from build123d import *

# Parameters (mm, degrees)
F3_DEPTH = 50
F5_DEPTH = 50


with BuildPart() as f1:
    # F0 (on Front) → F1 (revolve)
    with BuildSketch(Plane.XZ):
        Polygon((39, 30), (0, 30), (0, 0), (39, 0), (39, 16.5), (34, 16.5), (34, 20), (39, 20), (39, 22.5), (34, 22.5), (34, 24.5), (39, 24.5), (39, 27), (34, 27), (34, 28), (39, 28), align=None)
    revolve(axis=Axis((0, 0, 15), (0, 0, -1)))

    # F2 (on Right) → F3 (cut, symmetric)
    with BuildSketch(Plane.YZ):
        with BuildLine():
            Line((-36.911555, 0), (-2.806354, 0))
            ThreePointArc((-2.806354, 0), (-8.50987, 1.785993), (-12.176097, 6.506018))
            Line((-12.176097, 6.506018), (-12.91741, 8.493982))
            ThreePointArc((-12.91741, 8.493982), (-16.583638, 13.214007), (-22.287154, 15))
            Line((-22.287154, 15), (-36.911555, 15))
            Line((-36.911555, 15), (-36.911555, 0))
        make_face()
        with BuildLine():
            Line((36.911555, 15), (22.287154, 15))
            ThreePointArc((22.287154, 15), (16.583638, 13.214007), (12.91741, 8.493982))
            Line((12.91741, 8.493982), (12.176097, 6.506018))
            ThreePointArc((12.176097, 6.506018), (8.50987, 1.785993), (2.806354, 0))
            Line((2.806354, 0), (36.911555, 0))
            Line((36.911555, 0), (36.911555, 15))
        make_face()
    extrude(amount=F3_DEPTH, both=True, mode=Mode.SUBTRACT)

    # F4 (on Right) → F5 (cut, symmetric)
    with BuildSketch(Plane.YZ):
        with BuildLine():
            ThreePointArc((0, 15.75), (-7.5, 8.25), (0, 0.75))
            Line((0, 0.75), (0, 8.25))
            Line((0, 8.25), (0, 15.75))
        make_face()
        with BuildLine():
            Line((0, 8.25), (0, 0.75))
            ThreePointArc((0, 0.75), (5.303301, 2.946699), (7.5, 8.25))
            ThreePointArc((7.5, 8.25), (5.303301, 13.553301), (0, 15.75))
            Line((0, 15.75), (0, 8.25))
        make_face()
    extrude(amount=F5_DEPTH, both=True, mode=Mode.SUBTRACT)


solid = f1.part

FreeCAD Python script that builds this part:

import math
import FreeCAD as App
import Part
import Sketcher

doc = App.newDocument("Part")
body = doc.addObject("PartDesign::Body", "Body")

sketch1 = doc.addObject("Sketcher::SketchObject", "Sketch")
body.addObject(sketch1)
sketch1.AttachmentSupport = (doc.XZ_Plane, [""])
sketch1.MapMode = "FlatFace"
sketch1.addGeometry(Part.LineSegment(App.Vector(39, 30, 0), App.Vector(0, 30, 0)), False)
sketch1.addGeometry(Part.LineSegment(App.Vector(0, 30, 0), App.Vector(0, 0, 0)), False)
sketch1.addGeometry(Part.LineSegment(App.Vector(0, 0, 0), App.Vector(39, 0, 0)), False)
sketch1.addGeometry(Part.LineSegment(App.Vector(39, 0, 0), App.Vector(39, 16.5, 0)), False)
sketch1.addGeometry(Part.LineSegment(App.Vector(39, 16.5, 0), App.Vector(34, 16.5, 0)), False)
sketch1.addGeometry(Part.LineSegment(App.Vector(34, 16.5, 0), App.Vector(34, 20, 0)), False)
sketch1.addGeometry(Part.LineSegment(App.Vector(34, 20, 0), App.Vector(39, 20, 0)), False)
sketch1.addGeometry(Part.LineSegment(App.Vector(39, 20, 0), App.Vector(39, 22.5, 0)), False)
sketch1.addGeometry(Part.LineSegment(App.Vector(39, 22.5, 0), App.Vector(34, 22.5, 0)), False)
sketch1.addGeometry(Part.LineSegment(App.Vector(34, 22.5, 0), App.Vector(34, 24.5, 0)), False)
sketch1.addGeometry(Part.LineSegment(App.Vector(34, 24.5, 0), App.Vector(39, 24.5, 0)), False)
sketch1.addGeometry(Part.LineSegment(App.Vector(39, 24.5, 0), App.Vector(39, 27, 0)), False)
sketch1.addGeometry(Part.LineSegment(App.Vector(39, 27, 0), App.Vector(34, 27, 0)), False)
sketch1.addGeometry(Part.LineSegment(App.Vector(34, 27, 0), App.Vector(34, 28, 0)), False)
sketch1.addGeometry(Part.LineSegment(App.Vector(34, 28, 0), App.Vector(39, 28, 0)), False)
sketch1.addGeometry(Part.LineSegment(App.Vector(39, 28, 0), App.Vector(39, 30, 0)), False)
sketch1.addConstraint(Sketcher.Constraint("Coincident", 0, 2, 1, 1))
sketch1.addConstraint(Sketcher.Constraint("Coincident", 1, 2, 2, 1))
sketch1.addConstraint(Sketcher.Constraint("Coincident", 2, 2, 3, 1))
sketch1.addConstraint(Sketcher.Constraint("Coincident", 3, 2, 4, 1))
sketch1.addConstraint(Sketcher.Constraint("Coincident", 4, 2, 5, 1))
sketch1.addConstraint(Sketcher.Constraint("Coincident", 5, 2, 6, 1))
sketch1.addConstraint(Sketcher.Constraint("Coincident", 6, 2, 7, 1))
sketch1.addConstraint(Sketcher.Constraint("Coincident", 7, 2, 8, 1))
sketch1.addConstraint(Sketcher.Constraint("Coincident", 8, 2, 9, 1))
sketch1.addConstraint(Sketcher.Constraint("Coincident", 9, 2, 10, 1))
sketch1.addConstraint(Sketcher.Constraint("Coincident", 10, 2, 11, 1))
sketch1.addConstraint(Sketcher.Constraint("Coincident", 11, 2, 12, 1))
sketch1.addConstraint(Sketcher.Constraint("Coincident", 12, 2, 13, 1))
sketch1.addConstraint(Sketcher.Constraint("Coincident", 13, 2, 14, 1))
sketch1.addConstraint(Sketcher.Constraint("Coincident", 14, 2, 15, 1))
sketch1.addConstraint(Sketcher.Constraint("Coincident", 15, 2, 0, 1))
sketch1.addConstraint(Sketcher.Constraint("Horizontal", 0))
sketch1.addConstraint(Sketcher.Constraint("Vertical", 1))
sketch1.addConstraint(Sketcher.Constraint("Horizontal", 2))
sketch1.addConstraint(Sketcher.Constraint("Vertical", 3))
sketch1.addConstraint(Sketcher.Constraint("Horizontal", 4))
sketch1.addConstraint(Sketcher.Constraint("Vertical", 5))
sketch1.addConstraint(Sketcher.Constraint("Horizontal", 6))
sketch1.addConstraint(Sketcher.Constraint("Vertical", 7))
sketch1.addConstraint(Sketcher.Constraint("Horizontal", 8))
sketch1.addConstraint(Sketcher.Constraint("Vertical", 9))
sketch1.addConstraint(Sketcher.Constraint("Horizontal", 10))
sketch1.addConstraint(Sketcher.Constraint("Vertical", 11))
sketch1.addConstraint(Sketcher.Constraint("Horizontal", 12))
sketch1.addConstraint(Sketcher.Constraint("Vertical", 13))
sketch1.addConstraint(Sketcher.Constraint("Horizontal", 14))
sketch1.addConstraint(Sketcher.Constraint("Vertical", 15))
sketch1.addConstraint(Sketcher.Constraint("Coincident", 1, 2, -1, 1))
sketch1.addConstraint(Sketcher.Constraint("Vertical", 3, 2, 6, 2))
sketch1.addConstraint(Sketcher.Constraint("Vertical", 5, 2, 8, 2))
sketch1.addConstraint(Sketcher.Constraint("Vertical", 7, 2, 10, 2))
sketch1.addConstraint(Sketcher.Constraint("Vertical", 9, 2, 12, 2))
sketch1.addConstraint(Sketcher.Constraint("Vertical", 11, 2, 14, 2))
sketch1.addConstraint(Sketcher.Constraint("Equal", 7, 11))
sketch1.addConstraint(Sketcher.Constraint("Equal", 9, 15))
sketch1.addConstraint(Sketcher.Constraint("DistanceX", 0, 2, 0, 1, 39.0))
sketch1.addConstraint(Sketcher.Constraint("DistanceX", 4, 2, 4, 1, 5.0))
sketch1.addConstraint(Sketcher.Constraint("DistanceY", 1, 2, 1, 1, 30.0))
sketch1.addConstraint(Sketcher.Constraint("DistanceY", 9, 1, 9, 2, 2.0))
sketch1.addConstraint(Sketcher.Constraint("DistanceY", 13, 1, 13, 2, 1.0))
sketch1.addConstraint(Sketcher.Constraint("DistanceY", 3, 1, 3, 2, 16.5))
sketch1.addConstraint(Sketcher.Constraint("DistanceY", 5, 1, 5, 2, 3.5))
revolution = doc.addObject("PartDesign::Revolution", "Revolution")
body.addObject(revolution)
revolution.Profile = sketch1
revolution.ReferenceAxis = (sketch1, ["V_Axis"])
revolution.Angle = 360

sketch2 = doc.addObject("Sketcher::SketchObject", "Sketch001")
body.addObject(sketch2)
sketch2.AttachmentSupport = (doc.YZ_Plane, [""])
sketch2.MapMode = "FlatFace"
sketch2.addGeometry(Part.LineSegment(App.Vector(-36.9, 0, 0), App.Vector(-2.8, 0, 0)), False)
sketch2.addGeometry(Part.ArcOfCircle(Part.Circle(App.Vector(-2.8, 10, 0), App.Vector(0, 0, 1), 10), math.radians(-160), math.radians(-90)), False)
sketch2.addGeometry(Part.LineSegment(App.Vector(-12.2, 6.5, 0), App.Vector(-12.9, 8.5, 0)), False)
sketch2.addGeometry(Part.ArcOfCircle(Part.Circle(App.Vector(-22.3, 5, 0), App.Vector(0, 0, 1), 10), math.radians(20), math.radians(90)), False)
sketch2.addGeometry(Part.LineSegment(App.Vector(-22.3, 15, 0), App.Vector(-36.9, 15, 0)), False)
sketch2.addGeometry(Part.LineSegment(App.Vector(-36.9, 15, 0), App.Vector(-36.9, 0, 0)), False)
sketch2.addGeometry(Part.LineSegment(App.Vector(36.9, 15, 0), App.Vector(22.3, 15, 0)), False)
sketch2.addGeometry(Part.ArcOfCircle(Part.Circle(App.Vector(22.3, 5, 0), App.Vector(0, 0, 1), 10), math.radians(90), math.radians(160)), False)
sketch2.addGeometry(Part.LineSegment(App.Vector(12.9, 8.5, 0), App.Vector(12.2, 6.5, 0)), False)
sketch2.addGeometry(Part.ArcOfCircle(Part.Circle(App.Vector(2.8, 10, 0), App.Vector(0, 0, 1), 10), math.radians(-90), math.radians(-20)), False)
sketch2.addGeometry(Part.LineSegment(App.Vector(2.8, 0, 0), App.Vector(36.9, 0, 0)), False)
sketch2.addGeometry(Part.LineSegment(App.Vector(36.9, 0, 0), App.Vector(36.9, 15, 0)), False)
sketch2.addConstraint(Sketcher.Constraint("Tangent", 0, 2, 1, 2))
sketch2.addConstraint(Sketcher.Constraint("Tangent", 1, 1, 2, 1))
sketch2.addConstraint(Sketcher.Constraint("Tangent", 2, 2, 3, 1))
sketch2.addConstraint(Sketcher.Constraint("Tangent", 3, 2, 4, 1))
sketch2.addConstraint(Sketcher.Constraint("Coincident", 4, 2, 5, 1))
sketch2.addConstraint(Sketcher.Constraint("Coincident", 5, 2, 0, 1))
sketch2.addConstraint(Sketcher.Constraint("Tangent", 6, 2, 7, 1))
sketch2.addConstraint(Sketcher.Constraint("Tangent", 7, 2, 8, 1))
sketch2.addConstraint(Sketcher.Constraint("Tangent", 8, 2, 9, 2))
sketch2.addConstraint(Sketcher.Constraint("Tangent", 9, 1, 10, 1))
sketch2.addConstraint(Sketcher.Constraint("Coincident", 10, 2, 11, 1))
sketch2.addConstraint(Sketcher.Constraint("Coincident", 11, 2, 6, 1))
sketch2.addConstraint(Sketcher.Constraint("Horizontal", 0))
sketch2.addConstraint(Sketcher.Constraint("Horizontal", 4))
sketch2.addConstraint(Sketcher.Constraint("Vertical", 5))
sketch2.addConstraint(Sketcher.Constraint("Horizontal", 6))
sketch2.addConstraint(Sketcher.Constraint("Horizontal", 10))
sketch2.addConstraint(Sketcher.Constraint("Vertical", 11))
sketch2.addConstraint(Sketcher.Constraint("Equal", 3, 7))
sketch2.addConstraint(Sketcher.Constraint("Equal", 1, 9))
sketch2.addConstraint(Sketcher.Constraint("Symmetric", 0, 2, 9, 1, -1, 1))
sketch2.addConstraint(Sketcher.Constraint("Symmetric", 3, 3, 7, 3, -2))
sketch2.addConstraint(Sketcher.Constraint("Symmetric", 5, 2, 10, 2, -2))
sketch2.addConstraint(Sketcher.Constraint("Radius", 3, 10.0))
sketch2.addConstraint(Sketcher.Constraint("DistanceY", 5, 2, 5, 1, 15.0))
sketch2.addConstraint(Sketcher.Constraint("DistanceY", 3, 3, 1, 3, 4.999998))
sketch2.addConstraint(Sketcher.Constraint("DistanceX", 0, 1, 0, 2, 34.105201))
sketch2.addConstraint(Sketcher.Constraint("DistanceX", 4, 2, 4, 1, 14.624401))
sketch2.addConstraint(Sketcher.Constraint("DistanceX", 2, 2, -1, 1, 12.91741))
pocket1 = doc.addObject("PartDesign::Pocket", "Pocket")
body.addObject(pocket1)
pocket1.Profile = sketch2
pocket1.Length = 100
pocket1.Midplane = True

sketch3 = doc.addObject("Sketcher::SketchObject", "Sketch002")
body.addObject(sketch3)
sketch3.AttachmentSupport = (doc.YZ_Plane, [""])
sketch3.MapMode = "FlatFace"
sketch3.addGeometry(Part.ArcOfCircle(Part.Circle(App.Vector(0, 8, 0), App.Vector(0, 0, 1), 8), math.radians(90), math.radians(270)), False)
sketch3.addGeometry(Part.ArcOfCircle(Part.Circle(App.Vector(0, 8, 0), App.Vector(0, 0, 1), 7), math.radians(-90), math.radians(0)), False)
sketch3.addGeometry(Part.ArcOfCircle(Part.Circle(App.Vector(0, 8, 0), App.Vector(0, 0, 1), 7), math.radians(0), math.radians(90)), False)
sketch3.addConstraint(Sketcher.Constraint("Tangent", 0, 2, 1, 1))
sketch3.addConstraint(Sketcher.Constraint("Tangent", 1, 2, 2, 1))
sketch3.addConstraint(Sketcher.Constraint("Tangent", 2, 2, 0, 1))
sketch3.addConstraint(Sketcher.Constraint("PointOnObject", 0, 3, -2))
sketch3.addConstraint(Sketcher.Constraint("PointOnObject", 0, 2, -2))
sketch3.addConstraint(Sketcher.Constraint("PointOnObject", 2, 2, -2))
sketch3.addConstraint(Sketcher.Constraint("Horizontal", 2, 3, 1, 2))
sketch3.addConstraint(Sketcher.Constraint("Radius", 0, 7.5))
sketch3.addConstraint(Sketcher.Constraint("DistanceY", -1, 1, 0, 3, 8.25))
pocket2 = doc.addObject("PartDesign::Pocket", "Pocket001")
body.addObject(pocket2)
pocket2.Profile = sketch3
pocket2.Length = 100
pocket2.Midplane = True

doc.recompute()
